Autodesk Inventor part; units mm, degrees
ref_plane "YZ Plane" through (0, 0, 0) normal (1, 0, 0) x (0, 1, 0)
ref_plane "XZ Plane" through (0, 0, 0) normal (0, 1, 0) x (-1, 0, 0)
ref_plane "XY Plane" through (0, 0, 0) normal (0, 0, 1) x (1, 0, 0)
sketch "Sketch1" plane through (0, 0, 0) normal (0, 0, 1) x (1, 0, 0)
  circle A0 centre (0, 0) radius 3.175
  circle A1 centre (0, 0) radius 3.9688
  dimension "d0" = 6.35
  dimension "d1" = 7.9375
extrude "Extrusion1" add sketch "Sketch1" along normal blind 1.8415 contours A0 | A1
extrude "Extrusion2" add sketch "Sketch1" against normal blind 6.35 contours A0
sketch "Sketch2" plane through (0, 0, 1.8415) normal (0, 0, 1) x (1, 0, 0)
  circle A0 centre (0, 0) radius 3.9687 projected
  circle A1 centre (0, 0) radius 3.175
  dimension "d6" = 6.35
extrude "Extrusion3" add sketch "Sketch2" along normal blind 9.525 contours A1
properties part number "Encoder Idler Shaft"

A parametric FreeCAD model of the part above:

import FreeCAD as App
import Part
import Sketcher

V = App.Vector
Q = App.Units.Quantity

doc = App.newDocument("Part")
body = doc.addObject("PartDesign::Body", "Body")

# Sketch on XY plane
sketch1 = doc.addObject("Sketcher::SketchObject", "Sketch")
body.addObject(sketch1)
sketch1.AttachmentSupport = (doc.XY_Plane, [""])
sketch1.MapMode = "FlatFace"
sketch1.addGeometry(Part.Circle(V(0, 0, 0), V(0, 0, 1), 4), False)
sketch1.addConstraint([
    Sketcher.Constraint("Coincident", 0, 3, -1, 1),
    Sketcher.Constraint("Diameter", 0, Q("0.3125 in")),
])
pad1 = doc.addObject("PartDesign::Pad", "Pad")
body.addObject(pad1)
pad1.Profile = sketch1
pad1.Length = Q("0.0725 in")

# Sketch on XY plane
sketch2 = doc.addObject("Sketcher::SketchObject", "Sketch001")
body.addObject(sketch2)
sketch2.AttachmentSupport = (doc.XY_Plane, [""])
sketch2.MapMode = "FlatFace"
sketch2.addGeometry(Part.Circle(V(0, 0, 0), V(0, 0, 1), 3.2), False)
sketch2.addConstraint([
    Sketcher.Constraint("Coincident", 0, 3, -1, 1),
    Sketcher.Constraint("Diameter", 0, Q("0.25 in")),
])
pad2 = doc.addObject("PartDesign::Pad", "Pad001")
body.addObject(pad2)
pad2.Profile = sketch2
pad2.Length = Q("0.25 in")
pad2.Reversed = True

# Sketch on XY plane
sketch3 = doc.addObject("Sketcher::SketchObject", "Sketch002")
body.addObject(sketch3)
sketch3.AttachmentSupport = (doc.XY_Plane, [""])
sketch3.MapMode = "FlatFace"
sketch3.AttachmentOffset = App.Placement(V(0, 0, 0.0725 * 25.4), App.Rotation())
sketch3.addGeometry(Part.Circle(V(0, 0, 0), V(0, 0, 1), 3.2), False)
sketch3.addConstraint([
    Sketcher.Constraint("Coincident", 0, 3, -1, 1),
    Sketcher.Constraint("Diameter", 0, Q("0.25 in")),
])
pad3 = doc.addObject("PartDesign::Pad", "Pad002")
body.addObject(pad3)
pad3.Profile = sketch3
pad3.Length = Q("0.375 in")

doc.recompute()
